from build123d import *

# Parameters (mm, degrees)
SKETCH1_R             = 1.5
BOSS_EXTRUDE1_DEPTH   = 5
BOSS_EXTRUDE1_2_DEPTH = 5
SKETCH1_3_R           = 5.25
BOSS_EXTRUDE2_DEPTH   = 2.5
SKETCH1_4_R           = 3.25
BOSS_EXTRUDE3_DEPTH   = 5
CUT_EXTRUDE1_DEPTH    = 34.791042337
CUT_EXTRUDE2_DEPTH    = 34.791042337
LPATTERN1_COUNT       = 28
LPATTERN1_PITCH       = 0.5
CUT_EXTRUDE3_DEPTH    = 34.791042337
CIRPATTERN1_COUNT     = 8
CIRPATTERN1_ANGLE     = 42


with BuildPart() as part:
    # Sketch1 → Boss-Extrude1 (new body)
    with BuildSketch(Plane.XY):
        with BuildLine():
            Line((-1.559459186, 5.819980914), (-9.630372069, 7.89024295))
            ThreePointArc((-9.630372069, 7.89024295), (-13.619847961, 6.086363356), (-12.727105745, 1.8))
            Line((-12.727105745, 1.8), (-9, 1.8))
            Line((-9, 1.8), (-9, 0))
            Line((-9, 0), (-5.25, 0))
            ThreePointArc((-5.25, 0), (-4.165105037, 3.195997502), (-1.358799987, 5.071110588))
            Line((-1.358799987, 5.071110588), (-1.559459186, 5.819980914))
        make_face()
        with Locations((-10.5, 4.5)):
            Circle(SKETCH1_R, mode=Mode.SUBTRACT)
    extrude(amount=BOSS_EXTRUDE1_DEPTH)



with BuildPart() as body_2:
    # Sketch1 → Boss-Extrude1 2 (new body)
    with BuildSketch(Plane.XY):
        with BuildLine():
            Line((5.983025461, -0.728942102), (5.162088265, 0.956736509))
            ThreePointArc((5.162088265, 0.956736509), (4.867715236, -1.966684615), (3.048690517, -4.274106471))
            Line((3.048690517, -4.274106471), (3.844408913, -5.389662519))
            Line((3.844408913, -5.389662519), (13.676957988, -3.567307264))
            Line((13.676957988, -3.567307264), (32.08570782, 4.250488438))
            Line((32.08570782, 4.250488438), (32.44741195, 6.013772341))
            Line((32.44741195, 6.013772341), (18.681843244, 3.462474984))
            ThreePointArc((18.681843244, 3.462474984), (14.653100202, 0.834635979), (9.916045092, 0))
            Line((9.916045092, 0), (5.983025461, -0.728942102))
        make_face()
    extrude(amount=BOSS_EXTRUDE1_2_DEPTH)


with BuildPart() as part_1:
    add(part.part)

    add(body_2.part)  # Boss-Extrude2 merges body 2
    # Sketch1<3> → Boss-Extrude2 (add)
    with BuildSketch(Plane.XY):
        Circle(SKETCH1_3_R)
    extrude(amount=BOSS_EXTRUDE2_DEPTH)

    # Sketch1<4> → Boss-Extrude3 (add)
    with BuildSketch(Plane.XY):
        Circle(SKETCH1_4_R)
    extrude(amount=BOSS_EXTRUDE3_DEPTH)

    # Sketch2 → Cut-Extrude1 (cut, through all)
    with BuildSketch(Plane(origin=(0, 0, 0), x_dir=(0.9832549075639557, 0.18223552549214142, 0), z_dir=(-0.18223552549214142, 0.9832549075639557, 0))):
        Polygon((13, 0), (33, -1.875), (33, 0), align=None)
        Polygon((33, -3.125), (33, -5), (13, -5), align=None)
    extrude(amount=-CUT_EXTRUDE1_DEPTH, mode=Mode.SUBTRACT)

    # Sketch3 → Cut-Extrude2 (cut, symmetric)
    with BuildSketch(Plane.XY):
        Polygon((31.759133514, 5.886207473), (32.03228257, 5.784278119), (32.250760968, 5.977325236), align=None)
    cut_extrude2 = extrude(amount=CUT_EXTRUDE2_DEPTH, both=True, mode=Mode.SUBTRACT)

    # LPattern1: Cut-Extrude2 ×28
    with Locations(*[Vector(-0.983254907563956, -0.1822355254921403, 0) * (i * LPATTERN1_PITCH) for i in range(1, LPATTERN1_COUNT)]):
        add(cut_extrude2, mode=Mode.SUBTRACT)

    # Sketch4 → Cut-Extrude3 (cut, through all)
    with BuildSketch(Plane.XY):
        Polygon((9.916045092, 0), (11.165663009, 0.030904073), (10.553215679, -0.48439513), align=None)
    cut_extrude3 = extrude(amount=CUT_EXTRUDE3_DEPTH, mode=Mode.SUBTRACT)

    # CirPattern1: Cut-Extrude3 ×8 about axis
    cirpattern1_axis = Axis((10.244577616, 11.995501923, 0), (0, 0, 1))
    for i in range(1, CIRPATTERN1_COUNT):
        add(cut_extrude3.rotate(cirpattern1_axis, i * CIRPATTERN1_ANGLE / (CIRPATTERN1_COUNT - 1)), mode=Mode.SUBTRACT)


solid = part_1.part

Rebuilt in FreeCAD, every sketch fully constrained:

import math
import FreeCAD as App
import Part
import Sketcher
Q = App.Units.Quantity


def add_polygon(sketch, points):
    """Adds a closed chain of lines whose ends are joined by coincident constraints."""
    first, n = sketch.GeometryCount, len(points)
    for a, b in zip(points, points[1:] + points[:1]):
        sketch.addGeometry(Part.LineSegment(App.Vector(*a, 0), App.Vector(*b, 0)), False)
    for i in range(n):
        sketch.addConstraint(Sketcher.Constraint("Coincident", first + i, 2, first + (i + 1) % n, 1))

doc = App.newDocument("Part")
body = doc.addObject("PartDesign::Body", "Body")

sketch1 = body.newObject("Sketcher::SketchObject", "Sketch")
sketch1.AttachmentSupport = (doc.getObject("XY_Plane"), [""])
sketch1.MapMode = "FlatFace"
sketch1.addGeometry([
    Part.LineSegment(App.Vector(-1.6, 5.8, 0), App.Vector(-9.6, 7.9, 0)),
    Part.ArcOfCircle(Part.Circle(App.Vector(-10.5, 4.5, 0), App.Vector(0, 0, 1), 3.5), math.radians(76), math.radians(230)),
    Part.LineSegment(App.Vector(-12.7, 1.8, 0), App.Vector(-9, 1.8, 0)),
    Part.LineSegment(App.Vector(-9, 1.8, 0), App.Vector(-9, 0, 0)),
    Part.LineSegment(App.Vector(-9, 0, 0), App.Vector(-5.2, 0, 0)),
    Part.ArcOfCircle(Part.Circle(App.Vector(0, 0, 0), App.Vector(0, 0, 1), 5.2), math.radians(105), math.radians(180)),
    Part.LineSegment(App.Vector(-1.4, 5.1, 0), App.Vector(-1.6, 5.8, 0)),
    Part.Circle(App.Vector(-10.5, 4.5, 0), App.Vector(0, 0, 1), 1.5),
], False)
sketch1.addConstraint([
    Sketcher.Constraint("Tangent", 0, 2, 1, 1),
    Sketcher.Constraint("Coincident", 1, 2, 2, 1),
    Sketcher.Constraint("Coincident", 2, 2, 3, 1),
    Sketcher.Constraint("Coincident", 3, 2, 4, 1),
    Sketcher.Constraint("Coincident", 4, 2, 5, 2),
    Sketcher.Constraint("Coincident", 5, 1, 6, 1),
    Sketcher.Constraint("Coincident", 6, 2, 0, 1),
    Sketcher.Constraint("Horizontal", 2),
    Sketcher.Constraint("Vertical", 3),
    Sketcher.Constraint("Horizontal", 4),
    Sketcher.Constraint("Coincident", 5, 3, -1, 1),
    Sketcher.Constraint("Coincident", 7, 3, 1, 3),
    Sketcher.Constraint("PointOnObject", 3, 2, -1),
    Sketcher.Constraint("Diameter", 7, 3.0),
    Sketcher.Constraint("Radius", 1, 3.5),
    Sketcher.Constraint("Angle", 6, Q("105 deg")),
    Sketcher.Constraint("Radius", 5, 5.25),
    Sketcher.Constraint("DistanceY", 3, 2, 3, 1, 1.8),
    Sketcher.Constraint("DistanceX", 2, 2, -1, 1, 9.0),
    Sketcher.Constraint("DistanceX", 1, 3, -1, 1, 10.5),
    Sketcher.Constraint("DistanceY", -1, 1, 1, 3, 4.5),
    Sketcher.Constraint("DistanceX", 5, 1, -1, 1, 1.3588),
    Sketcher.Constraint("DistanceX", 6, 2, -1, 1, 1.559459),
])
pad1 = body.newObject("PartDesign::Pad", "Pad")
pad1.Profile = sketch1
pad1.Length = 5
body2 = doc.addObject("PartDesign::Body", "Body001")

sketch2 = body2.newObject("Sketcher::SketchObject", "Sketch001")
sketch2.AttachmentSupport = (doc.getObject("XY_Plane001"), [""])
sketch2.MapMode = "FlatFace"
sketch2.addGeometry([
    Part.LineSegment(App.Vector(6, -0.7, 0), App.Vector(5.2, 1, 0)),
    Part.ArcOfCircle(Part.Circle(App.Vector(0, 0, 0), App.Vector(0, 0, 1), 5.3), math.radians(-54), math.radians(10)),
    Part.LineSegment(App.Vector(3, -4.3, 0), App.Vector(3.8, -5.4, 0)),
    Part.LineSegment(App.Vector(3.8, -5.4, 0), App.Vector(13.7, -3.6, 0)),
    Part.LineSegment(App.Vector(13.7, -3.6, 0), App.Vector(32.1, 4.3, 0)),
    Part.LineSegment(App.Vector(32.1, 4.3, 0), App.Vector(32.4, 6, 0)),
    Part.LineSegment(App.Vector(32.4, 6, 0), App.Vector(18.7, 3.5, 0)),
    Part.ArcOfCircle(Part.Circle(App.Vector(10.2, 12, 0), App.Vector(0, 0, 1), 12), math.radians(-92), math.radians(-45)),
    Part.LineSegment(App.Vector(9.9, 0, 0), App.Vector(6, -0.7, 0)),
], False)
sketch2.addConstraint([
    Sketcher.Constraint("Coincident", 0, 2, 1, 2),
    Sketcher.Constraint("Coincident", 1, 1, 2, 1),
    Sketcher.Constraint("Coincident", 2, 2, 3, 1),
    Sketcher.Constraint("Coincident", 3, 2, 4, 1),
    Sketcher.Constraint("Coincident", 4, 2, 5, 1),
    Sketcher.Constraint("Coincident", 5, 2, 6, 1),
    Sketcher.Constraint("Coincident", 6, 2, 7, 2),
    Sketcher.Constraint("Coincident", 7, 1, 8, 1),
    Sketcher.Constraint("Coincident", 8, 2, 0, 1),
    Sketcher.Constraint("Coincident", 1, 3, -1, 1),
    Sketcher.Constraint("PointOnObject", 7, 1, -1),
    Sketcher.Constraint("Parallel", 3, 6),
    Sketcher.Constraint("Parallel", 6, 8),
    Sketcher.Constraint("Radius", 7, 12.0),
    Sketcher.Constraint("Radius", 1, 5.25),
    Sketcher.Constraint("Distance", 3, 10.0),
    Sketcher.Constraint("Distance", 4, 20.0),
    Sketcher.Constraint("Distance", 6, 14.0),
    Sketcher.Constraint("Distance", 8, 4.0),
    Sketcher.Constraint("Angle", 2, Q("-54.5 deg")),
    Sketcher.Constraint("Angle", 3, Q("10.5 deg")),
    Sketcher.Constraint("Distance", 5, 1.8),
    Sketcher.Constraint("DistanceY", -1, 1, 7, 3, 11.995502),
    Sketcher.Constraint("DistanceY", 2, 2, 0, 2, 6.346399),
    Sketcher.Constraint("DistanceY", 1, 1, 3, 2, 0.706799),
    Sketcher.Constraint("DistanceX", 2, 2, 4, 2, 28.241299),
    Sketcher.Constraint("DistanceX", 7, 1, 6, 2, 8.765798),
    Sketcher.Constraint("DistanceX", -1, 1, 0, 2, 5.162088),
])
pad2 = body2.newObject("PartDesign::Pad", "Pad001")
pad2.Profile = sketch2
pad2.Length = 5
body.AllowCompound = True
doc.recompute()

boolean = body.newObject("PartDesign::Boolean", "Boolean")
boolean.Type = "Fuse"
boolean.addObjects([body2])

sketch3 = body.newObject("Sketcher::SketchObject", "Sketch002")
sketch3.AttachmentSupport = (doc.getObject("XY_Plane"), [""])
sketch3.MapMode = "FlatFace"
sketch3.addGeometry(Part.Circle(App.Vector(0, 0, 0), App.Vector(0, 0, 1), 5), False)
sketch3.addConstraint([
    Sketcher.Constraint("Coincident", 0, 3, -1, 1),
    Sketcher.Constraint("Diameter", 0, 10.5),
])
pad3 = body.newObject("PartDesign::Pad", "Pad002")
pad3.Profile = sketch3
pad3.Length = 2.5

sketch4 = body.newObject("Sketcher::SketchObject", "Sketch003")
sketch4.AttachmentSupport = (doc.getObject("XY_Plane"), [""])
sketch4.MapMode = "FlatFace"
sketch4.addGeometry(Part.Circle(App.Vector(0, 0, 0), App.Vector(0, 0, 1), 3.2), False)
sketch4.addConstraint([
    Sketcher.Constraint("Coincident", 0, 3, -1, 1),
    Sketcher.Constraint("Diameter", 0, 6.5),
])
pad4 = body.newObject("PartDesign::Pad", "Pad003")
pad4.Profile = sketch4
pad4.Length = 5

sketch5 = body.newObject("Sketcher::SketchObject", "Sketch004")
sketch5.Placement = App.Placement(App.Vector(0, 0, 0), App.Rotation(App.Vector(0.983254908, 0.182235525, 0), App.Vector(0, 0, -1.000000001), App.Vector(-0.182235525, 0.983254908, 0), "ZXY"))
add_polygon(sketch5, [(13, 0), (33, -1.9), (33, 0)])
add_polygon(sketch5, [(33, -5), (33, -3.1), (13, -5)])
sketch5.addConstraint([
    Sketcher.Constraint("Vertical", 1),
    Sketcher.Constraint("Horizontal", 2),
    Sketcher.Constraint("Vertical", 3),
    Sketcher.Constraint("Horizontal", 5),
    Sketcher.Constraint("PointOnObject", 1, 2, -1),
    Sketcher.Constraint("Vertical", 1, 2, 3, 2),
    Sketcher.Constraint("Vertical", 2, 2, 4, 2),
    Sketcher.Constraint("Equal", 1, 3),
    Sketcher.Constraint("DistanceX", 2, 2, 2, 1, 20.0),
    Sketcher.Constraint("DistanceX", -1, 1, 0, 2, 33.0),
    Sketcher.Constraint("DistanceY", 4, 2, -1, 1, 5.0),
    Sketcher.Constraint("DistanceY", 1, 1, 1, 2, 1.875),
])
pocket1 = body.newObject("PartDesign::Pocket", "Pocket")
pocket1.Profile = sketch5
pocket1.Type = "ThroughAll"

sketch6 = body.newObject("Sketcher::SketchObject", "Sketch005")
sketch6.AttachmentSupport = (doc.getObject("XY_Plane"), [""])
sketch6.MapMode = "FlatFace"
add_polygon(sketch6, [(31.76, 5.89), (32.03, 5.78), (32.25, 5.98)])
sketch6.addConstraint([
    Sketcher.Constraint("Equal", 0, 1),
    Sketcher.Constraint("Angle", 2, Q("-169.5 deg")),
    Sketcher.Constraint("Distance", 2, 0.5),
    Sketcher.Constraint("DistanceY", -1, 1, 0, 2, 5.784278),
    Sketcher.Constraint("DistanceX", -1, 1, 1, 2, 32.250761),
    Sketcher.Constraint("DistanceX", 0, 2, 1, 2, 0.218478),
])
pocket2 = body.newObject("PartDesign::Pocket", "Pocket001")
pocket2.Profile = sketch6
pocket2.Length = 69.582085
pocket2.Midplane = True
doc.recompute()

datumline = body.newObject("PartDesign::Line", "DatumLine")
datumline.Placement = App.Placement(App.Vector(0, 0, 0), App.Rotation(App.Vector(0, 0, 1), App.Vector(-0.983254907, -0.182235526, 0)))
linearpattern = body.newObject("PartDesign::LinearPattern", "LinearPattern")
linearpattern.Originals = [pocket2]
linearpattern.Direction = (datumline, [""])
linearpattern.Mode = "offset"
linearpattern.Offset = 0.5
linearpattern.Occurrences = 28
body.Tip = linearpattern

sketch7 = body.newObject("Sketcher::SketchObject", "Sketch006")
sketch7.AttachmentSupport = (doc.getObject("XY_Plane"), [""])
sketch7.MapMode = "FlatFace"
add_polygon(sketch7, [(11.2, 0), (9.9, 0), (10.6, -0.5)])
sketch7.addConstraint([
    Sketcher.Constraint("PointOnObject", 0, 2, -1),
    Sketcher.Constraint("Equal", 1, 2),
    Sketcher.Constraint("Distance", 0, 1.25),
    Sketcher.Constraint("DistanceY", 1, 2, 2, 2, 0.515299),
    Sketcher.Constraint("Distance", 1, 0.800391),
    Sketcher.Constraint("DistanceX", -1, 1, 0, 2, 9.916045),
])
pocket3 = body.newObject("PartDesign::Pocket", "Pocket002")
pocket3.Profile = sketch7
pocket3.Type = "ThroughAll"
pocket3.Reversed = True
doc.recompute()

datumline2 = body.newObject("PartDesign::Line", "DatumLine001")
datumline2.Placement = App.Placement(App.Vector(10.244578, 11.995502, 0), App.Rotation(App.Vector(0, 0, 1), App.Vector(0, 0, 1)))
polarpattern = body.newObject("PartDesign::PolarPattern", "PolarPattern")
polarpattern.Originals = [pocket3]
polarpattern.Axis = (datumline2, [""])
polarpattern.Angle = 42
polarpattern.Occurrences = 8
body.Tip = polarpattern

doc.recompute()
